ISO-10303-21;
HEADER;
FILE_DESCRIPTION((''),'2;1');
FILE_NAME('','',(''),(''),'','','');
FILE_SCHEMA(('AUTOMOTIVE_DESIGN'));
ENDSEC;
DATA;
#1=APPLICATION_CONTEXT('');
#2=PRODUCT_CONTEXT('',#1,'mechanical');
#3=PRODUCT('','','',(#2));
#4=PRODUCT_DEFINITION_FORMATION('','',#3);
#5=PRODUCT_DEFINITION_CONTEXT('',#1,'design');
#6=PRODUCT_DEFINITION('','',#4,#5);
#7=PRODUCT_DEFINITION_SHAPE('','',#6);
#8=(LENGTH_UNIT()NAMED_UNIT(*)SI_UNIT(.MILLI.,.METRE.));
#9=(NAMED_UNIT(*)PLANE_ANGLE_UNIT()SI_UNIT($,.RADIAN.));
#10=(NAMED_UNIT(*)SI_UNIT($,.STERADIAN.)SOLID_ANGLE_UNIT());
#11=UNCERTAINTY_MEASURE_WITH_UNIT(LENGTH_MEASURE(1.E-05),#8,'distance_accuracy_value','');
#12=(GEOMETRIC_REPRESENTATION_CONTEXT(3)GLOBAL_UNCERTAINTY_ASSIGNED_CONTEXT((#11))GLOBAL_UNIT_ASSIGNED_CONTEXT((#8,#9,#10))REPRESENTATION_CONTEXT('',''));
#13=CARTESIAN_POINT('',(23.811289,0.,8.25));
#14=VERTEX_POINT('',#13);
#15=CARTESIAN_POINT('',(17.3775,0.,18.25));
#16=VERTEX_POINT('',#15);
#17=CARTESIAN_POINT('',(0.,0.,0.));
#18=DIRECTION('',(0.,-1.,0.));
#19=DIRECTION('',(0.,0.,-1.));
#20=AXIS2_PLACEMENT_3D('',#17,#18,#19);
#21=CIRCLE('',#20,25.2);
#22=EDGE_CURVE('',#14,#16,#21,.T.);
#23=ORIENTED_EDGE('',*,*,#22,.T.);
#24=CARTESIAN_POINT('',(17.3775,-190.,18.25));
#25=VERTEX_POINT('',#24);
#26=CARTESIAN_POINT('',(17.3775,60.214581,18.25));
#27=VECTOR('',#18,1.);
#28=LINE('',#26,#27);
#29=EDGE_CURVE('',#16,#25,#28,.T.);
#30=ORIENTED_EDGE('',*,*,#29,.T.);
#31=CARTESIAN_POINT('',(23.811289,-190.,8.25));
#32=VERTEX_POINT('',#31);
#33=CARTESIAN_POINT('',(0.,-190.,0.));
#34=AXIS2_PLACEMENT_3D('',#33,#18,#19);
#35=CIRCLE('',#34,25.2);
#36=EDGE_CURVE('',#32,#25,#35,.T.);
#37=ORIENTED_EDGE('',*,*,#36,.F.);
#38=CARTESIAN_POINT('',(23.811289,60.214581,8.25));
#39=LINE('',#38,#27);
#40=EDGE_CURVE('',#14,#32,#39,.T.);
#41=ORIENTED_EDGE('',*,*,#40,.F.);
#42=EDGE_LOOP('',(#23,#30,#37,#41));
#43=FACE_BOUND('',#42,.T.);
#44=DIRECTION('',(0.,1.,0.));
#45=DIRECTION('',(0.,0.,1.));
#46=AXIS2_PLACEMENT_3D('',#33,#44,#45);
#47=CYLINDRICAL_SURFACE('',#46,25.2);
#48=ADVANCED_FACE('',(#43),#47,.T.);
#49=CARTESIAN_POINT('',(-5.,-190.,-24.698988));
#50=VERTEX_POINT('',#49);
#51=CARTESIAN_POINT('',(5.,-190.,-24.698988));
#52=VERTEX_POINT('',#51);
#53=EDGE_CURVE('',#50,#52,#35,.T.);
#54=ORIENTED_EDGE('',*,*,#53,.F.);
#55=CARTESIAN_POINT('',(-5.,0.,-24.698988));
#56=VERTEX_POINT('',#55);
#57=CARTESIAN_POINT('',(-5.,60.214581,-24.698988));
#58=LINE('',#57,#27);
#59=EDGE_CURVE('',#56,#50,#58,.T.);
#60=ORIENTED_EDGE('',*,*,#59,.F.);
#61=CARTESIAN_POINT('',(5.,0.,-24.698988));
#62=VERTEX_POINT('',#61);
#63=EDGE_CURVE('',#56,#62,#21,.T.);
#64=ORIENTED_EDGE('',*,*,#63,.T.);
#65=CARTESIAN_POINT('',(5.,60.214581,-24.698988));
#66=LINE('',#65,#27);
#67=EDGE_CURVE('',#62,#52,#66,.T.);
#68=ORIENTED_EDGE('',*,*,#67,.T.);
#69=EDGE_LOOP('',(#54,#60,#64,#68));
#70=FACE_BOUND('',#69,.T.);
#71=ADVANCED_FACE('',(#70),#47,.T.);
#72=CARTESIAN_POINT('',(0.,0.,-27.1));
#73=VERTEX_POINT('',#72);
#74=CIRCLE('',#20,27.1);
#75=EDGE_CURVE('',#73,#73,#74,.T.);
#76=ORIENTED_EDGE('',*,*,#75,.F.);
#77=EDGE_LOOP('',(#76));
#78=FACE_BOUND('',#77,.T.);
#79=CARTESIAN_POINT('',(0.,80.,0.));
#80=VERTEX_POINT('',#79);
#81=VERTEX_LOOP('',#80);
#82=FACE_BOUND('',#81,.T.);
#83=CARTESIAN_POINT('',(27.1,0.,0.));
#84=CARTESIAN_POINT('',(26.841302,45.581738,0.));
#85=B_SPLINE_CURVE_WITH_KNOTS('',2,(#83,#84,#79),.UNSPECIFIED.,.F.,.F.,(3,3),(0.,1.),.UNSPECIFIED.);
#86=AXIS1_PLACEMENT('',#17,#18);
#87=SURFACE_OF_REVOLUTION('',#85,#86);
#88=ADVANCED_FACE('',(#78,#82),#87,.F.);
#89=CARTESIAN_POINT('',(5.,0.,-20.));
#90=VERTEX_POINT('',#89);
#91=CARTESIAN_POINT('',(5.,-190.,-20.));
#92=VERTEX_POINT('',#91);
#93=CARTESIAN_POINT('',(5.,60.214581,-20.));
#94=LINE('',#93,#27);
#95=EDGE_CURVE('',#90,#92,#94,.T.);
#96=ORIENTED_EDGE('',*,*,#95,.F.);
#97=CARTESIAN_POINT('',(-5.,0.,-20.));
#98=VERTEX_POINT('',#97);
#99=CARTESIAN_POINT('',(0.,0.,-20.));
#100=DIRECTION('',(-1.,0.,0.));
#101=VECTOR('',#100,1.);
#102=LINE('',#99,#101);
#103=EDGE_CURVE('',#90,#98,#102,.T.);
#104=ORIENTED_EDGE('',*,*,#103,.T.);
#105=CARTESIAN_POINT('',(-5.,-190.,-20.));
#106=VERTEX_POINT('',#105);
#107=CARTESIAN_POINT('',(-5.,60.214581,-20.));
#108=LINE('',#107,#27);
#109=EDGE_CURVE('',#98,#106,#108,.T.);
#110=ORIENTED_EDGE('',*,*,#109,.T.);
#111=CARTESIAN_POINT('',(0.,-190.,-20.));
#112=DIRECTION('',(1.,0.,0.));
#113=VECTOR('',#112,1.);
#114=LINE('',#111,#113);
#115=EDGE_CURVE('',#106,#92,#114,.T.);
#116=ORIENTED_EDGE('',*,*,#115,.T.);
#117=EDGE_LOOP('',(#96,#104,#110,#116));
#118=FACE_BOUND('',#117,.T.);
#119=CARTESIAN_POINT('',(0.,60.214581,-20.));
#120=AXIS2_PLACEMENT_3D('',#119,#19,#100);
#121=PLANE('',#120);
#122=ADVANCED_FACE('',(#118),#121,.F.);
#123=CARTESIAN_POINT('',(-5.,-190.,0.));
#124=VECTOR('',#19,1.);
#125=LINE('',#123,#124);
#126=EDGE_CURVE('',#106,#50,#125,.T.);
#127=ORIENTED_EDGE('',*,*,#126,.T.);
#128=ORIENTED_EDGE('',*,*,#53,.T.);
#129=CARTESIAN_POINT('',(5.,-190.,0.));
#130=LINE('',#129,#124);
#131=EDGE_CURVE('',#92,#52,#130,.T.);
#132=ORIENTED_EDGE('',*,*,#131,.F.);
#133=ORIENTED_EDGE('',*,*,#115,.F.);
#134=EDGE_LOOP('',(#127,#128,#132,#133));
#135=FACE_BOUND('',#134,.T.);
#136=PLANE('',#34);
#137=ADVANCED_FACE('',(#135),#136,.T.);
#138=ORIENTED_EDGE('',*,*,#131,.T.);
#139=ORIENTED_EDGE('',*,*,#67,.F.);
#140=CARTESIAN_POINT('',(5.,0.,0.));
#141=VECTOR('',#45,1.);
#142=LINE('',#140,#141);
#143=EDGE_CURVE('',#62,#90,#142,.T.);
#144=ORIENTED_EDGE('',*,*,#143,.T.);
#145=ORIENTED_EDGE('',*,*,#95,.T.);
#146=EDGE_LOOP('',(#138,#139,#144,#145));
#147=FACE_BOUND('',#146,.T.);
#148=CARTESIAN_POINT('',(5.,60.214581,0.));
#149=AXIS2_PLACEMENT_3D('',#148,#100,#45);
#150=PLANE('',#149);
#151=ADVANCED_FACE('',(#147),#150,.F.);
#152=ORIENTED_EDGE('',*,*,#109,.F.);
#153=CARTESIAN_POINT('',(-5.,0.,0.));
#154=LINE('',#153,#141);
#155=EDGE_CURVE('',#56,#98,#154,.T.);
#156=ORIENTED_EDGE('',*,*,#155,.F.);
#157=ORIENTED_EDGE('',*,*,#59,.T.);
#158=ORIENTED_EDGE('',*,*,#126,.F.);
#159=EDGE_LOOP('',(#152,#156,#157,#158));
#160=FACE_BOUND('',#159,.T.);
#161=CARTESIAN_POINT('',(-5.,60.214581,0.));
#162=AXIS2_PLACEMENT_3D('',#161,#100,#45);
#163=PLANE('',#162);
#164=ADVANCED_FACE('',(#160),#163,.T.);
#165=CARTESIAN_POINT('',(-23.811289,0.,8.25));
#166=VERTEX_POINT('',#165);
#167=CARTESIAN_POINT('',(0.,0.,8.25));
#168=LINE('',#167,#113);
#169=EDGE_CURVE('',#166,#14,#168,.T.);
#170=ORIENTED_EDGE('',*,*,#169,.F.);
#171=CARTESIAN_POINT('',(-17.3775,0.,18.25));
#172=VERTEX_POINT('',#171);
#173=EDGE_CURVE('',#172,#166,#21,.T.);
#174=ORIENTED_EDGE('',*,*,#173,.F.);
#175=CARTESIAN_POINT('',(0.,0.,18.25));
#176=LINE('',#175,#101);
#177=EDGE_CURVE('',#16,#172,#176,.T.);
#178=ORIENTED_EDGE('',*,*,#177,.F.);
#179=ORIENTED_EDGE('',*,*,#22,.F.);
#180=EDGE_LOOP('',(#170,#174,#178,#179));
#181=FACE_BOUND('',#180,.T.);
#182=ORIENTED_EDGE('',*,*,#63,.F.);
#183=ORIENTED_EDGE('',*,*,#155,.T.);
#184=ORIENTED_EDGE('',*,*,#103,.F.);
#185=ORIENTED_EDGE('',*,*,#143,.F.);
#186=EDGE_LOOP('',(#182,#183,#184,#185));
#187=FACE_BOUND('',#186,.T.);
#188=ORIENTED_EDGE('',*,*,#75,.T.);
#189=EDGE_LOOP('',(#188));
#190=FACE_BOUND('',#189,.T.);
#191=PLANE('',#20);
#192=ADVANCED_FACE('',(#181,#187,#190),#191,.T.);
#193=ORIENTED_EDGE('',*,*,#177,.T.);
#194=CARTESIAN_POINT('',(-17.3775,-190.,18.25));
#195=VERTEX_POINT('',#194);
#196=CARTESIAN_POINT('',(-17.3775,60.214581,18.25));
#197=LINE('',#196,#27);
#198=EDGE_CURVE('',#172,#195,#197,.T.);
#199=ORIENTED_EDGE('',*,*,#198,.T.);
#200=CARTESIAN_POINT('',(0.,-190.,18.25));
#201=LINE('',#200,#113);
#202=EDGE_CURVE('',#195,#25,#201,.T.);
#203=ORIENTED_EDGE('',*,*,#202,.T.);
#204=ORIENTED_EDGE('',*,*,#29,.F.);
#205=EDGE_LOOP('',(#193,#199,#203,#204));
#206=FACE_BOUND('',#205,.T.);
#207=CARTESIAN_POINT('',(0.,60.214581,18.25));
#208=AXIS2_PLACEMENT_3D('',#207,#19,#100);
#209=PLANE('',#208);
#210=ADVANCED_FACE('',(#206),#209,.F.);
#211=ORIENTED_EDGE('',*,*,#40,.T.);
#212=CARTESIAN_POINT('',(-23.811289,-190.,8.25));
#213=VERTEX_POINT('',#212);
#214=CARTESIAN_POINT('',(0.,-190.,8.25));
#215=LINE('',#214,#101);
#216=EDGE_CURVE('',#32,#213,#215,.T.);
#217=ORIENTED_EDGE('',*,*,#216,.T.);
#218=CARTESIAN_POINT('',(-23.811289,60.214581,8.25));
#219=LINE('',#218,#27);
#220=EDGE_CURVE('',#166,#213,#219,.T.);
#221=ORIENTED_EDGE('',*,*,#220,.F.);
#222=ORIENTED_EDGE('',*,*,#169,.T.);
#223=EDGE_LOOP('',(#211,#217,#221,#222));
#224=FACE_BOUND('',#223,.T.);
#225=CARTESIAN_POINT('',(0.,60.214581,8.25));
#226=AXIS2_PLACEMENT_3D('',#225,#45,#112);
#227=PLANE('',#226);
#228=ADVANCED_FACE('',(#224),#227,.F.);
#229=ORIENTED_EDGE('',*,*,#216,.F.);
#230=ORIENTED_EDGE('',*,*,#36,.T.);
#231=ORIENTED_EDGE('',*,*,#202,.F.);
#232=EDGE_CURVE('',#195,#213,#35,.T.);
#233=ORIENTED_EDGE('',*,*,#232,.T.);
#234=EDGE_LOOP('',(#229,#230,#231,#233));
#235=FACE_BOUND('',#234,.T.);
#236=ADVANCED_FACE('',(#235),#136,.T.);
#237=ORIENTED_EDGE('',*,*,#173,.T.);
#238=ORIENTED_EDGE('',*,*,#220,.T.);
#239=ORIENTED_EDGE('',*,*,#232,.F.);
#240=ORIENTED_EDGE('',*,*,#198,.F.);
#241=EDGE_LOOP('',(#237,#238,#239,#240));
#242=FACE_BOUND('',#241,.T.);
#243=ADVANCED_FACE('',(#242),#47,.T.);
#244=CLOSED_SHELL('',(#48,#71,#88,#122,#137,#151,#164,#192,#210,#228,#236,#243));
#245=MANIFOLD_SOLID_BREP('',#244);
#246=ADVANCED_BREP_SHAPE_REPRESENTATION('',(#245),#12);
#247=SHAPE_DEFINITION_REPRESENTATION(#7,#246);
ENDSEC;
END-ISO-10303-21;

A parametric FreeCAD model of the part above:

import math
import FreeCAD as App
import Part
import Sketcher
Q = App.Units.Quantity

doc = App.newDocument("Part")
body = doc.addObject("PartDesign::Body", "Body")

sketch1 = body.newObject("Sketcher::SketchObject", "Sketch")
sketch1.AttachmentSupport = (doc.getObject("XY_Plane"), [""])
sketch1.MapMode = "FlatFace"
sketch1.addGeometry([
    Part.LineSegment(App.Vector(0, 80, 0), App.Vector(0, 0, 0)),
    Part.LineSegment(App.Vector(0, 0, 0), App.Vector(27.1, 0, 0)),
    Part.BSplineCurve([App.Vector(0, 80, 0), App.Vector(26.841302, 45.581738, 0), App.Vector(27.1, 0, 0)], [3, 3], [0, 1], False, 2, [1, 1, 1], False),
], False)
sketch1.addConstraint([
    Sketcher.Constraint("Block", 2),
    Sketcher.Constraint("Coincident", 0, 2, 1, 1),
    Sketcher.Constraint("Coincident", 1, 2, 2, 2),
    Sketcher.Constraint("Coincident", 2, 1, 0, 1),
    Sketcher.Constraint("Vertical", 0),
    Sketcher.Constraint("Horizontal", 1),
])
revolution = body.newObject("PartDesign::Revolution", "Revolution")
revolution.Profile = sketch1
revolution.ReferenceAxis = (sketch1, ["V_Axis"])
revolution.Angle = 360

sketch2 = body.newObject("Sketcher::SketchObject", "Sketch001")
sketch2.AttachmentSupport = (doc.getObject("XZ_Plane"), [""])
sketch2.MapMode = "FlatFace"
sketch2.addGeometry(Part.Circle(App.Vector(0, 0, 0), App.Vector(0, 0, 1), 25), False)
sketch2.addConstraint([
    Sketcher.Constraint("Coincident", 0, 3, -1, 1),
    Sketcher.Constraint("Diameter", 0, Q("50.4 mm")),
])
pad1 = body.newObject("PartDesign::Pad", "Pad")
pad1.Profile = sketch2
pad1.Length = 190

sketch3 = body.newObject("Sketcher::SketchObject", "Sketch002")
sketch3.AttachmentSupport = (doc.getObject("XZ_Plane"), [""])
sketch3.MapMode = "FlatFace"
sketch3.addGeometry([
    Part.ArcOfCircle(Part.Circle(App.Vector(0, 0, 0), App.Vector(0, 0, 1), 25.2), math.radians(-19.11), math.radians(0)),
    Part.ArcOfCircle(Part.Circle(App.Vector(0, 0, 0), App.Vector(0, 0, 1), 25.2), math.radians(0), math.radians(19.11)),
    Part.LineSegment(App.Vector(23.8, 8.2, 0), App.Vector(-23.8, 8.2, 0)),
    Part.ArcOfCircle(Part.Circle(App.Vector(0, 0, 0), App.Vector(0, 0, 1), 25.2), math.radians(161), math.radians(199)),
    Part.ArcOfCircle(Part.Circle(App.Vector(0, 0, 0), App.Vector(0, 0, 1), 25.2), math.radians(-161), math.radians(-101)),
    Part.LineSegment(App.Vector(-5, -24.7, 0), App.Vector(-5, -20, 0)),
    Part.LineSegment(App.Vector(-5, -20, 0), App.Vector(5, -20, 0)),
    Part.LineSegment(App.Vector(5, -20, 0), App.Vector(5, -24.7, 0)),
    Part.ArcOfCircle(Part.Circle(App.Vector(0, 0, 0), App.Vector(0, 0, 1), 25.2), math.radians(-79), math.radians(-19)),
    Part.ArcOfCircle(Part.Circle(App.Vector(0, 0, 0), App.Vector(0, 0, 1), 25.2), math.radians(46), math.radians(134)),
    Part.LineSegment(App.Vector(-17.4, 18.2, 0), App.Vector(17.4, 18.2, 0)),
], False)
sketch3.addConstraint([
    Sketcher.Constraint("Tangent", 0, 2, 1, 1),
    Sketcher.Constraint("Coincident", 1, 2, 2, 1),
    Sketcher.Constraint("Coincident", 2, 2, 3, 1),
    Sketcher.Constraint("Tangent", 3, 2, 4, 1),
    Sketcher.Constraint("Coincident", 4, 2, 5, 1),
    Sketcher.Constraint("Coincident", 5, 2, 6, 1),
    Sketcher.Constraint("Coincident", 6, 2, 7, 1),
    Sketcher.Constraint("Coincident", 7, 2, 8, 1),
    Sketcher.Constraint("Tangent", 8, 2, 0, 1),
    Sketcher.Constraint("Coincident", 9, 1, 10, 2),
    Sketcher.Constraint("Coincident", 10, 1, 9, 2),
    Sketcher.Constraint("Horizontal", 2),
    Sketcher.Constraint("Vertical", 5),
    Sketcher.Constraint("Horizontal", 6),
    Sketcher.Constraint("Vertical", 7),
    Sketcher.Constraint("Horizontal", 10),
    Sketcher.Constraint("Coincident", 0, 3, -1, 1),
    Sketcher.Constraint("Coincident", 3, 3, -1, 1),
    Sketcher.Constraint("Coincident", 9, 3, -1, 1),
    Sketcher.Constraint("Equal", 0, 1),
    Sketcher.Constraint("Equal", 1, 3),
    Sketcher.Constraint("Equal", 3, 4),
    Sketcher.Constraint("Equal", 4, 8),
    Sketcher.Constraint("Equal", 8, 9),
    Sketcher.Constraint("PointOnObject", 0, 2, -1),
    Sketcher.Constraint("Horizontal", 4, 2, 7, 2),
    Sketcher.Constraint("Horizontal", 3, 2, 8, 2),
    Sketcher.Constraint("Vertical", 2, 2, 3, 2),
    Sketcher.Constraint("Radius", 0, Q("25.2 mm")),
    Sketcher.Constraint("DistanceX", 6, 1, 6, 2, Q("10 mm")),
    Sketcher.Constraint("DistanceY", 5, 2, -1, 1, Q("20 mm")),
    Sketcher.Constraint("DistanceY", 1, 2, 9, 1, Q("10 mm")),
    Sketcher.Constraint("DistanceY", 3, 2, 2, 2, Q("16.5 mm")),
])
pocket1 = body.newObject("PartDesign::Pocket", "Pocket")
pocket1.Profile = sketch3
pocket1.Length = 190
pocket1.Reversed = True

doc.recompute()
